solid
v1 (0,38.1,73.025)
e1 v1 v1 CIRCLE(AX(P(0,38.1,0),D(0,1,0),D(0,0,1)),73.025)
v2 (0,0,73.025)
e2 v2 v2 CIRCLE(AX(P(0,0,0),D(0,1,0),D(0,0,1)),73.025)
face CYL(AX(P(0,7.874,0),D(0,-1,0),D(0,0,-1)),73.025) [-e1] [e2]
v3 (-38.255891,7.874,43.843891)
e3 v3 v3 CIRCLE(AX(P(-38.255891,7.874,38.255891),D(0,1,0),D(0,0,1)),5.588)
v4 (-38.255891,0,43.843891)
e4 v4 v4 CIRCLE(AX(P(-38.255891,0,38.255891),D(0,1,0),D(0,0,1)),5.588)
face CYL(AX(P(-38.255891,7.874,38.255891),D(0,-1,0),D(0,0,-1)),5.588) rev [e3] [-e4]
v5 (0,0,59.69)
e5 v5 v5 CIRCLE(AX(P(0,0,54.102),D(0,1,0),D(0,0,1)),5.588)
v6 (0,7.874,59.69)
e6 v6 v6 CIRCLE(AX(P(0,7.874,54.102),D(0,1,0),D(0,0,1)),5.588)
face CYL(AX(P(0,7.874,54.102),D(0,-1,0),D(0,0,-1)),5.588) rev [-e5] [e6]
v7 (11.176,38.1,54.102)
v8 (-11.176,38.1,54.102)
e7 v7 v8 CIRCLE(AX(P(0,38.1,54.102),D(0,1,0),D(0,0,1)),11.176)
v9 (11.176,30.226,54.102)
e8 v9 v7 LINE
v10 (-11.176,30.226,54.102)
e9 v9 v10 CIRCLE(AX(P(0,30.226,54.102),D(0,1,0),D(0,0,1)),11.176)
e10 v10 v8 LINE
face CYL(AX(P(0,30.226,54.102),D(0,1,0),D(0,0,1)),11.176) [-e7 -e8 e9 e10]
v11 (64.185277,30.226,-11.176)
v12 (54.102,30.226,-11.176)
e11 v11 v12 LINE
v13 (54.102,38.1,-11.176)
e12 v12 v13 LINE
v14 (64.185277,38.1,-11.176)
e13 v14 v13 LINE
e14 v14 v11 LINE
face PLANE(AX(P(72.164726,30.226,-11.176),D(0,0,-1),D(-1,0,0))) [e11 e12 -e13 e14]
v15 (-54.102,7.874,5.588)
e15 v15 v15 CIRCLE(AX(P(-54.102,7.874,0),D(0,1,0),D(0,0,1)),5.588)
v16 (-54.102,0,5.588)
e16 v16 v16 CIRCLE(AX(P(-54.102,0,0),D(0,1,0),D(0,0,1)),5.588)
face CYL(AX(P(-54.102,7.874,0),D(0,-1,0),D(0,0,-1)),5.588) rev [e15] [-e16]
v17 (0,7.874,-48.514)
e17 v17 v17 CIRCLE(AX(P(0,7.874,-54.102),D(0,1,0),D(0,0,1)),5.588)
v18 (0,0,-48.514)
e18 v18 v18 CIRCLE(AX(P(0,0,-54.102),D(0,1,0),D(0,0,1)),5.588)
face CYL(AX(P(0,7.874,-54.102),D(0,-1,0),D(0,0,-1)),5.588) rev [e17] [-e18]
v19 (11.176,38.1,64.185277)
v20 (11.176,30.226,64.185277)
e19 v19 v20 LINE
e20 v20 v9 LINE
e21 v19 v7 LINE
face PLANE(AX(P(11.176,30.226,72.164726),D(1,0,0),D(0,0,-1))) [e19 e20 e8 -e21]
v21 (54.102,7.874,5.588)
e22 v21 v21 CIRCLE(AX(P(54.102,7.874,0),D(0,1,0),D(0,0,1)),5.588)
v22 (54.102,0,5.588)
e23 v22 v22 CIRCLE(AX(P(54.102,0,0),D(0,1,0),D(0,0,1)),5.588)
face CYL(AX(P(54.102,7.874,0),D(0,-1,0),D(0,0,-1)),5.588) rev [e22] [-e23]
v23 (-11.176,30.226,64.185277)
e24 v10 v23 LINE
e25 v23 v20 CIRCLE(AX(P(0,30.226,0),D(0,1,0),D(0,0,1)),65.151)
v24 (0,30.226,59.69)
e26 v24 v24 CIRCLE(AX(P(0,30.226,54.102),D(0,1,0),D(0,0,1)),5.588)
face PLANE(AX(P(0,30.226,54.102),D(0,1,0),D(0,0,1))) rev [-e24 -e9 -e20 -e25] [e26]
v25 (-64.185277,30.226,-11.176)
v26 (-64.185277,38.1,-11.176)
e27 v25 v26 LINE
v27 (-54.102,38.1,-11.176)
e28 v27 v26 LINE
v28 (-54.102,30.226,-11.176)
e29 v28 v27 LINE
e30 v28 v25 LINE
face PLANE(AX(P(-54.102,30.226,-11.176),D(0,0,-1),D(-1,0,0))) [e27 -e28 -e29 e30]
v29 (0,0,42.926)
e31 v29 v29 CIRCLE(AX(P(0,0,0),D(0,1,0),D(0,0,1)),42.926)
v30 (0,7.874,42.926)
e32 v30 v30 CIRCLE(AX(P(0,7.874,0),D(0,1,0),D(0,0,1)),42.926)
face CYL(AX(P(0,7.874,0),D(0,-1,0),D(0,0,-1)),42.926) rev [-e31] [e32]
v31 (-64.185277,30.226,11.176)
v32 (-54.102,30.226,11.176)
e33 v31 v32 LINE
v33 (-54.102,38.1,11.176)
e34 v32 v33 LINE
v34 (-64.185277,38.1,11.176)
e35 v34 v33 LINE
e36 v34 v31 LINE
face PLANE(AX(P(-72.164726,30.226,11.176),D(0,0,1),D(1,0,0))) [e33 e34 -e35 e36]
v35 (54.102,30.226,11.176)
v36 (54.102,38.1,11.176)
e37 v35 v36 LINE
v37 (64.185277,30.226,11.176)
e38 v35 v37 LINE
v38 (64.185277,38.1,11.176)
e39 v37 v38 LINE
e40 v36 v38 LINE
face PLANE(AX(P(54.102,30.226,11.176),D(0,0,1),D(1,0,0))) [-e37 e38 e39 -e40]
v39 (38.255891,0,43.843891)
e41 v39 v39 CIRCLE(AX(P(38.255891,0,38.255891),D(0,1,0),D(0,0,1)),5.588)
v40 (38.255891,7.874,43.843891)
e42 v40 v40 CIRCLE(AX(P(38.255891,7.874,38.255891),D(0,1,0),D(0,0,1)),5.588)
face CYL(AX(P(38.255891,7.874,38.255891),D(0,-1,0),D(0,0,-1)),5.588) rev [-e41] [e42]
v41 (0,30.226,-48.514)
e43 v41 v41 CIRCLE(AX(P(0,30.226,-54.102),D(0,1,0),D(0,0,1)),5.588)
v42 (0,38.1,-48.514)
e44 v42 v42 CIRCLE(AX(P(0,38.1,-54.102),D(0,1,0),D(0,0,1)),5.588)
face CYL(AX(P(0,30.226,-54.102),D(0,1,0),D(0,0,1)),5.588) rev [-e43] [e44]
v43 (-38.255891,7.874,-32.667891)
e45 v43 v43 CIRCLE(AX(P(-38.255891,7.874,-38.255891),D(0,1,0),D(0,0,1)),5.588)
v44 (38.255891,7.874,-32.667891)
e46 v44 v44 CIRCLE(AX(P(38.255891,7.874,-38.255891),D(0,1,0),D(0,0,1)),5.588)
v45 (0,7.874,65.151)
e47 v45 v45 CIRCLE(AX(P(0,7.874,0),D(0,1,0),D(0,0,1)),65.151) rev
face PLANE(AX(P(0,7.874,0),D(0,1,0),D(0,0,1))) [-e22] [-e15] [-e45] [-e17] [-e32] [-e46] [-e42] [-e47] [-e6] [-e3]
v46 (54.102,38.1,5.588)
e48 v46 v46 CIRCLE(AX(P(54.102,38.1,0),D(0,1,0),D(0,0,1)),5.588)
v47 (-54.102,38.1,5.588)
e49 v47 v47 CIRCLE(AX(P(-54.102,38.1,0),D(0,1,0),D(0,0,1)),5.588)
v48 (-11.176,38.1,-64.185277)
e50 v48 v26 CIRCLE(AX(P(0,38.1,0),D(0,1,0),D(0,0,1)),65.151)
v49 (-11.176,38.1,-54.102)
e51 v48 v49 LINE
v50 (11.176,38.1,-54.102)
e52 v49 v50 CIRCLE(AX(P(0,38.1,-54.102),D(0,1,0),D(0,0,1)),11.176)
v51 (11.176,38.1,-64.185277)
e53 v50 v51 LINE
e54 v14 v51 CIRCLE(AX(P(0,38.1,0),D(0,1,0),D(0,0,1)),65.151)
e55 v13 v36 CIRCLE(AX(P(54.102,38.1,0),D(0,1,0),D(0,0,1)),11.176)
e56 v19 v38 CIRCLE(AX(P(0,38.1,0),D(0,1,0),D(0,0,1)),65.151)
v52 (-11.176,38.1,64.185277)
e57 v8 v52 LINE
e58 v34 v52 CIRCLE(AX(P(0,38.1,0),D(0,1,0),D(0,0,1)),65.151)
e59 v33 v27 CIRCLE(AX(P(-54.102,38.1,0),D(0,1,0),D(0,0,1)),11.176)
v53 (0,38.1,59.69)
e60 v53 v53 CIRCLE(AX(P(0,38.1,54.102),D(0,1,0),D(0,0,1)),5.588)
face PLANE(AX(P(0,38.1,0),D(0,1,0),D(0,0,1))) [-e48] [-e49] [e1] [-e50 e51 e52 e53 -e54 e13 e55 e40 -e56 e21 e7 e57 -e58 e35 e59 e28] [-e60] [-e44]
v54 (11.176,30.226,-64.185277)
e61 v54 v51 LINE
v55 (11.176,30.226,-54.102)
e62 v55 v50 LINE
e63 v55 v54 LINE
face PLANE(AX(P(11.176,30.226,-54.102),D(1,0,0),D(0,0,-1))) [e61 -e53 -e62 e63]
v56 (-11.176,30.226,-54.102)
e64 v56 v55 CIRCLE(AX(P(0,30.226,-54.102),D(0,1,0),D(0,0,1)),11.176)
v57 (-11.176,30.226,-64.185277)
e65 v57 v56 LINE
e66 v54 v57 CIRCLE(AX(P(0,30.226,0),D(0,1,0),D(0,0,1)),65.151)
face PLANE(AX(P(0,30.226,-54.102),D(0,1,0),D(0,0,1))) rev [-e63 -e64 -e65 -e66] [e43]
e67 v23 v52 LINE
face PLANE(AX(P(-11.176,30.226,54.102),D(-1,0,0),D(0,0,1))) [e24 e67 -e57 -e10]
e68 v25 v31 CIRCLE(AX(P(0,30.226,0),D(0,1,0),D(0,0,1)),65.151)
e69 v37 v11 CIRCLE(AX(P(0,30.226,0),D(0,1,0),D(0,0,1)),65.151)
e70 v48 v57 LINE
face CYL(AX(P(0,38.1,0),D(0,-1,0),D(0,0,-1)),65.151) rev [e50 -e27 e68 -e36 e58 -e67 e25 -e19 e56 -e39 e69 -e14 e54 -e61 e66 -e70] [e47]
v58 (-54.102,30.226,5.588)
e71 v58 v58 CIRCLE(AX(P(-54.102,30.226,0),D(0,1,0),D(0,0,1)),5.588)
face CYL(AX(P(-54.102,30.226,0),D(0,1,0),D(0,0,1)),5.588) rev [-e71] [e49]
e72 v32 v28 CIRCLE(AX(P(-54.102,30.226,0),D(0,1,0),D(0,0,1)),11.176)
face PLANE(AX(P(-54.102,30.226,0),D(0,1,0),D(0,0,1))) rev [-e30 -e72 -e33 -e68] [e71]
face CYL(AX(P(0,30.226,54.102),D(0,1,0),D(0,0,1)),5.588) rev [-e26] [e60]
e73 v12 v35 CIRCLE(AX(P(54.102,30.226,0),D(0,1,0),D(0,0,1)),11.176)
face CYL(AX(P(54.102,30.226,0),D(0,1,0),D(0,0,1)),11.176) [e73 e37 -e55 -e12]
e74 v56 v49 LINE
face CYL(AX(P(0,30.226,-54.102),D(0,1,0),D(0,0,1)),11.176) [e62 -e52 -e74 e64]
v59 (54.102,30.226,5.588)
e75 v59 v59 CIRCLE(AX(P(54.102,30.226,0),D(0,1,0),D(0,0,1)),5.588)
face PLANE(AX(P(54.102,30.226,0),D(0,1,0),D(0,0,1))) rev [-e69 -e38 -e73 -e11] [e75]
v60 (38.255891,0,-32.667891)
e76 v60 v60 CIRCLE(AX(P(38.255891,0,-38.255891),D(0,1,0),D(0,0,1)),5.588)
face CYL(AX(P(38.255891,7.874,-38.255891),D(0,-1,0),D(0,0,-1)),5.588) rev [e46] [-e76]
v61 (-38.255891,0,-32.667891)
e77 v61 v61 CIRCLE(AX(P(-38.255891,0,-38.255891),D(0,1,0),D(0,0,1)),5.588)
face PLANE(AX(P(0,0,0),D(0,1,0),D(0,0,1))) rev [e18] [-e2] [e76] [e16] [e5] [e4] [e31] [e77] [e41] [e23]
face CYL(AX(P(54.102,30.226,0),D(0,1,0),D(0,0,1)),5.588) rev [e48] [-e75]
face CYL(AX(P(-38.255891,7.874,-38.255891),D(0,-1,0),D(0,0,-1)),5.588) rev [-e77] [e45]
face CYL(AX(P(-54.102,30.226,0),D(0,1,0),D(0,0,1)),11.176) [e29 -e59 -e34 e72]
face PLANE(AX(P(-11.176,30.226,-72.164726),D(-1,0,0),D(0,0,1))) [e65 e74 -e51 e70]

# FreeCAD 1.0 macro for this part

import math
import FreeCAD as App
import Part
import Sketcher
Q = App.Units.Quantity

doc = App.newDocument("Part")
params = doc.addObject("Spreadsheet::Sheet", "Params")
for row, (alias, value) in enumerate([
    ("sketch1_diameter", "5.75 in"),
    ("sketch1_diameter2", "0.44 in"),
    ("sketch1_diameter3", "3.38 in"),
    ("pad1_length", "0.31 in"),
    ("sketch2_diameter", "5.75 in"),
    ("sketch2_diameter2", "5.13 in"),
    ("pad2_length", "1.19 in"),
    ("sketch3_diameter", "0.44 in"),
    ("sketch3_radius", "0.44 in"),
    ("pad3_length", "0.31 in"),
], start=1):
    params.set(f"A{row}", alias)
    params.set(f"B{row}", "=" + value)
    params.setAlias(f"B{row}", alias)

body = doc.addObject("PartDesign::Body", "Body")

# Sketch on XZ plane
sketch1 = doc.addObject("Sketcher::SketchObject", "Sketch")
body.addObject(sketch1)
sketch1.AttachmentSupport = (doc.XZ_Plane, [""])
sketch1.MapMode = "FlatFace"
sketch1.addGeometry([
    Part.Circle(App.Vector(0, 0, 0), App.Vector(0, 0, 1), 73),  # 0
    Part.Circle(App.Vector(-38, -38, 0), App.Vector(0, 0, 1), 6),  # 1
    Part.Circle(App.Vector(0, -54, 0), App.Vector(0, 0, 1), 6),  # 2
    Part.Circle(App.Vector(-54, 0, 0), App.Vector(0, 0, 1), 6),  # 3
    Part.Circle(App.Vector(-38, 38, 0), App.Vector(0, 0, 1), 6),  # 4
    Part.Circle(App.Vector(38, -38, 0), App.Vector(0, 0, 1), 6),  # 5
    Part.Circle(App.Vector(54, 0, 0), App.Vector(0, 0, 1), 6),  # 6
    Part.Circle(App.Vector(0, 0, 0), App.Vector(0, 0, 1), 43),  # 7
    Part.Circle(App.Vector(0, 54, 0), App.Vector(0, 0, 1), 6),  # 8
    Part.Circle(App.Vector(38, 38, 0), App.Vector(0, 0, 1), 6),  # 9
], False)
sketch1.addConstraint([
    Sketcher.Constraint("Coincident", 0, 3, -1, 1),
    Sketcher.Constraint("Coincident", 7, 3, -1, 1),
    Sketcher.Constraint("Equal", 1, 2),
    Sketcher.Constraint("Equal", 2, 3),
    Sketcher.Constraint("Equal", 3, 4),
    Sketcher.Constraint("Equal", 4, 5),
    Sketcher.Constraint("Equal", 5, 6),
    Sketcher.Constraint("Equal", 6, 8),
    Sketcher.Constraint("Equal", 8, 9),
    Sketcher.Constraint("Symmetric", 4, 3, 5, 3, -1, 1),
    Sketcher.Constraint("Symmetric", 3, 3, 6, 3, -1, 1),
    Sketcher.Constraint("Symmetric", 2, 3, 8, 3, -1, 1),
    Sketcher.Constraint("Symmetric", 1, 3, 9, 3, -1, 1),
    Sketcher.Constraint("Symmetric", 1, 3, 5, 3, -2),
    Sketcher.Constraint("PointOnObject", 2, 3, -2),
    Sketcher.Constraint("PointOnObject", 3, 3, -1),
    Sketcher.Constraint("Diameter", 0, Q("5.75 in")),
    Sketcher.Constraint("Diameter", 1, Q("0.44 in")),
    Sketcher.Constraint("Diameter", 7, Q("3.38 in")),
    Sketcher.Constraint("DistanceY", 2, 3, -1, 1, Q("2.13 in")),
    Sketcher.Constraint("DistanceX", 3, 3, -1, 1, Q("2.13 in")),
    Sketcher.Constraint("DistanceX", 1, 3, -1, 1, Q("38.255891 mm")),
    Sketcher.Constraint("DistanceY", 1, 3, -1, 1, Q("38.255891 mm")),
])
sketch1.setExpression("Constraints[16]", "Params.sketch1_diameter")
sketch1.setExpression("Constraints[17]", "Params.sketch1_diameter2")
sketch1.setExpression("Constraints[18]", "Params.sketch1_diameter3")
pad1 = doc.addObject("PartDesign::Pad", "Pad")
body.addObject(pad1)
pad1.Profile = sketch1
pad1.setExpression("Length", "Params.pad1_length")
pad1.Reversed = True

# Sketch on XZ plane
sketch2 = doc.addObject("Sketcher::SketchObject", "Sketch001")
body.addObject(sketch2)
sketch2.AttachmentSupport = (doc.XZ_Plane, [""])
sketch2.MapMode = "FlatFace"
sketch2.AttachmentOffset = App.Placement(App.Vector(0, 0, -0.31 * 25.4), App.Rotation())
sketch2.addGeometry([
    Part.Circle(App.Vector(0, 0, 0), App.Vector(0, 0, 1), 73),
    Part.Circle(App.Vector(0, 0, 0), App.Vector(0, 0, 1), 65),
], False)
sketch2.addConstraint([
    Sketcher.Constraint("Coincident", 0, 3, -1, 1),
    Sketcher.Constraint("Coincident", 1, 3, -1, 1),
    Sketcher.Constraint("Diameter", 0, Q("5.75 in")),
    Sketcher.Constraint("Diameter", 1, Q("5.13 in")),
])
sketch2.setExpression("Constraints[2]", "Params.sketch2_diameter")
sketch2.setExpression("Constraints[3]", "Params.sketch2_diameter2")
pad2 = doc.addObject("PartDesign::Pad", "Pad001")
body.addObject(pad2)
pad2.Profile = sketch2
pad2.setExpression("Length", "Params.pad2_length")
pad2.Reversed = True

# Sketch on XZ plane
sketch3 = doc.addObject("Sketcher::SketchObject", "Sketch002")
body.addObject(sketch3)
sketch3.AttachmentSupport = (doc.XZ_Plane, [""])
sketch3.MapMode = "FlatFace"
sketch3.AttachmentOffset = App.Placement(App.Vector(0, 0, -1.19 * 25.4), App.Rotation())
sketch3.addGeometry([
    Part.LineSegment(App.Vector(-11, 54, 0), App.Vector(-11, 72, 0)),  # 0
    Part.LineSegment(App.Vector(-11, 72, 0), App.Vector(11, 72, 0)),  # 1
    Part.LineSegment(App.Vector(11, 72, 0), App.Vector(11, 54, 0)),  # 2
    Part.ArcOfCircle(Part.Circle(App.Vector(0, 54, 0), App.Vector(0, 0, 1), 11), math.radians(180), math.radians(360)),  # 3
    Part.Circle(App.Vector(0, 54, 0), App.Vector(0, 0, 1), 6),  # 4
    Part.LineSegment(App.Vector(-54, -11, 0), App.Vector(-72, -11, 0)),  # 5
    Part.LineSegment(App.Vector(-72, -11, 0), App.Vector(-72, 11, 0)),  # 6
    Part.LineSegment(App.Vector(-72, 11, 0), App.Vector(-54, 11, 0)),  # 7
    Part.ArcOfCircle(Part.Circle(App.Vector(-54, 0, 0), App.Vector(0, 0, 1), 11), math.radians(-90), math.radians(90)),  # 8
    Part.Circle(App.Vector(-54, 0, 0), App.Vector(0, 0, 1), 6),  # 9
    Part.LineSegment(App.Vector(11, -54, 0), App.Vector(11, -72, 0)),  # 10
    Part.LineSegment(App.Vector(11, -72, 0), App.Vector(-11, -72, 0)),  # 11
    Part.LineSegment(App.Vector(-11, -72, 0), App.Vector(-11, -54, 0)),  # 12
    Part.ArcOfCircle(Part.Circle(App.Vector(0, -54, 0), App.Vector(0, 0, 1), 11), math.radians(0), math.radians(180)),  # 13
    Part.Circle(App.Vector(0, -54, 0), App.Vector(0, 0, 1), 6),  # 14
    Part.LineSegment(App.Vector(54, 11, 0), App.Vector(72, 11, 0)),  # 15
    Part.LineSegment(App.Vector(72, 11, 0), App.Vector(72, -11, 0)),  # 16
    Part.LineSegment(App.Vector(72, -11, 0), App.Vector(54, -11, 0)),  # 17
    Part.ArcOfCircle(Part.Circle(App.Vector(54, 0, 0), App.Vector(0, 0, 1), 11), math.radians(90), math.radians(270)),  # 18
    Part.Circle(App.Vector(54, 0, 0), App.Vector(0, 0, 1), 6),  # 19
], False)
sketch3.addConstraint([
    Sketcher.Constraint("Coincident", 0, 2, 1, 1),
    Sketcher.Constraint("Coincident", 1, 2, 2, 1),
    Sketcher.Constraint("Tangent", 2, 2, 3, 2),
    Sketcher.Constraint("Tangent", 3, 1, 0, 1),
    Sketcher.Constraint("Coincident", 5, 2, 6, 1),
    Sketcher.Constraint("Coincident", 6, 2, 7, 1),
    Sketcher.Constraint("Tangent", 7, 2, 8, 2),
    Sketcher.Constraint("Tangent", 8, 1, 5, 1),
    Sketcher.Constraint("Coincident", 10, 2, 11, 1),
    Sketcher.Constraint("Coincident", 11, 2, 12, 1),
    Sketcher.Constraint("Tangent", 12, 2, 13, 2),
    Sketcher.Constraint("Tangent", 13, 1, 10, 1),
    Sketcher.Constraint("Coincident", 15, 2, 16, 1),
    Sketcher.Constraint("Coincident", 16, 2, 17, 1),
    Sketcher.Constraint("Tangent", 17, 2, 18, 2),
    Sketcher.Constraint("Tangent", 18, 1, 15, 1),
    Sketcher.Constraint("Vertical", 0),
    Sketcher.Constraint("Horizontal", 1),
    Sketcher.Constraint("Vertical", 2),
    Sketcher.Constraint("Horizontal", 5),
    Sketcher.Constraint("Vertical", 6),
    Sketcher.Constraint("Horizontal", 7),
    Sketcher.Constraint("Vertical", 10),
    Sketcher.Constraint("Horizontal", 11),
    Sketcher.Constraint("Vertical", 12),
    Sketcher.Constraint("Horizontal", 15),
    Sketcher.Constraint("Vertical", 16),
    Sketcher.Constraint("Horizontal", 17),
    Sketcher.Constraint("Coincident", 4, 3, 3, 3),
    Sketcher.Constraint("Coincident", 9, 3, 8, 3),
    Sketcher.Constraint("Coincident", 14, 3, 13, 3),
    Sketcher.Constraint("Coincident", 19, 3, 18, 3),
    Sketcher.Constraint("Equal", 3, 8),
    Sketcher.Constraint("Equal", 4, 9),
    Sketcher.Constraint("Equal", 8, 13),
    Sketcher.Constraint("Equal", 9, 14),
    Sketcher.Constraint("Equal", 13, 18),
    Sketcher.Constraint("Equal", 14, 19),
    Sketcher.Constraint("Symmetric", 3, 3, 13, 3, -1, 1),
    Sketcher.Constraint("Symmetric", 8, 3, 18, 3, -1, 1),
    Sketcher.Constraint("Symmetric", 6, 2, 15, 2, -2),
    Sketcher.Constraint("Symmetric", 1, 2, 10, 2, -1),
    Sketcher.Constraint("Equal", 17, 0),
    Sketcher.Constraint("Diameter", 4, Q("0.44 in")),
    Sketcher.Constraint("Radius", 3, Q("0.44 in")),
    Sketcher.Constraint("DistanceY", -1, 1, 3, 3, Q("2.13 in")),
    Sketcher.Constraint("DistanceX", 8, 3, -1, 1, Q("2.13 in")),
    Sketcher.Constraint("DistanceX", 5, 2, 5, 1, Q("18.062726 mm")),
])
sketch3.setExpression("Constraints[43]", "Params.sketch3_diameter")
sketch3.setExpression("Constraints[44]", "Params.sketch3_radius")
pad3 = doc.addObject("PartDesign::Pad", "Pad002")
body.addObject(pad3)
pad3.Profile = sketch3
pad3.setExpression("Length", "Params.pad3_length")
pad3.Reversed = True

doc.recompute()
